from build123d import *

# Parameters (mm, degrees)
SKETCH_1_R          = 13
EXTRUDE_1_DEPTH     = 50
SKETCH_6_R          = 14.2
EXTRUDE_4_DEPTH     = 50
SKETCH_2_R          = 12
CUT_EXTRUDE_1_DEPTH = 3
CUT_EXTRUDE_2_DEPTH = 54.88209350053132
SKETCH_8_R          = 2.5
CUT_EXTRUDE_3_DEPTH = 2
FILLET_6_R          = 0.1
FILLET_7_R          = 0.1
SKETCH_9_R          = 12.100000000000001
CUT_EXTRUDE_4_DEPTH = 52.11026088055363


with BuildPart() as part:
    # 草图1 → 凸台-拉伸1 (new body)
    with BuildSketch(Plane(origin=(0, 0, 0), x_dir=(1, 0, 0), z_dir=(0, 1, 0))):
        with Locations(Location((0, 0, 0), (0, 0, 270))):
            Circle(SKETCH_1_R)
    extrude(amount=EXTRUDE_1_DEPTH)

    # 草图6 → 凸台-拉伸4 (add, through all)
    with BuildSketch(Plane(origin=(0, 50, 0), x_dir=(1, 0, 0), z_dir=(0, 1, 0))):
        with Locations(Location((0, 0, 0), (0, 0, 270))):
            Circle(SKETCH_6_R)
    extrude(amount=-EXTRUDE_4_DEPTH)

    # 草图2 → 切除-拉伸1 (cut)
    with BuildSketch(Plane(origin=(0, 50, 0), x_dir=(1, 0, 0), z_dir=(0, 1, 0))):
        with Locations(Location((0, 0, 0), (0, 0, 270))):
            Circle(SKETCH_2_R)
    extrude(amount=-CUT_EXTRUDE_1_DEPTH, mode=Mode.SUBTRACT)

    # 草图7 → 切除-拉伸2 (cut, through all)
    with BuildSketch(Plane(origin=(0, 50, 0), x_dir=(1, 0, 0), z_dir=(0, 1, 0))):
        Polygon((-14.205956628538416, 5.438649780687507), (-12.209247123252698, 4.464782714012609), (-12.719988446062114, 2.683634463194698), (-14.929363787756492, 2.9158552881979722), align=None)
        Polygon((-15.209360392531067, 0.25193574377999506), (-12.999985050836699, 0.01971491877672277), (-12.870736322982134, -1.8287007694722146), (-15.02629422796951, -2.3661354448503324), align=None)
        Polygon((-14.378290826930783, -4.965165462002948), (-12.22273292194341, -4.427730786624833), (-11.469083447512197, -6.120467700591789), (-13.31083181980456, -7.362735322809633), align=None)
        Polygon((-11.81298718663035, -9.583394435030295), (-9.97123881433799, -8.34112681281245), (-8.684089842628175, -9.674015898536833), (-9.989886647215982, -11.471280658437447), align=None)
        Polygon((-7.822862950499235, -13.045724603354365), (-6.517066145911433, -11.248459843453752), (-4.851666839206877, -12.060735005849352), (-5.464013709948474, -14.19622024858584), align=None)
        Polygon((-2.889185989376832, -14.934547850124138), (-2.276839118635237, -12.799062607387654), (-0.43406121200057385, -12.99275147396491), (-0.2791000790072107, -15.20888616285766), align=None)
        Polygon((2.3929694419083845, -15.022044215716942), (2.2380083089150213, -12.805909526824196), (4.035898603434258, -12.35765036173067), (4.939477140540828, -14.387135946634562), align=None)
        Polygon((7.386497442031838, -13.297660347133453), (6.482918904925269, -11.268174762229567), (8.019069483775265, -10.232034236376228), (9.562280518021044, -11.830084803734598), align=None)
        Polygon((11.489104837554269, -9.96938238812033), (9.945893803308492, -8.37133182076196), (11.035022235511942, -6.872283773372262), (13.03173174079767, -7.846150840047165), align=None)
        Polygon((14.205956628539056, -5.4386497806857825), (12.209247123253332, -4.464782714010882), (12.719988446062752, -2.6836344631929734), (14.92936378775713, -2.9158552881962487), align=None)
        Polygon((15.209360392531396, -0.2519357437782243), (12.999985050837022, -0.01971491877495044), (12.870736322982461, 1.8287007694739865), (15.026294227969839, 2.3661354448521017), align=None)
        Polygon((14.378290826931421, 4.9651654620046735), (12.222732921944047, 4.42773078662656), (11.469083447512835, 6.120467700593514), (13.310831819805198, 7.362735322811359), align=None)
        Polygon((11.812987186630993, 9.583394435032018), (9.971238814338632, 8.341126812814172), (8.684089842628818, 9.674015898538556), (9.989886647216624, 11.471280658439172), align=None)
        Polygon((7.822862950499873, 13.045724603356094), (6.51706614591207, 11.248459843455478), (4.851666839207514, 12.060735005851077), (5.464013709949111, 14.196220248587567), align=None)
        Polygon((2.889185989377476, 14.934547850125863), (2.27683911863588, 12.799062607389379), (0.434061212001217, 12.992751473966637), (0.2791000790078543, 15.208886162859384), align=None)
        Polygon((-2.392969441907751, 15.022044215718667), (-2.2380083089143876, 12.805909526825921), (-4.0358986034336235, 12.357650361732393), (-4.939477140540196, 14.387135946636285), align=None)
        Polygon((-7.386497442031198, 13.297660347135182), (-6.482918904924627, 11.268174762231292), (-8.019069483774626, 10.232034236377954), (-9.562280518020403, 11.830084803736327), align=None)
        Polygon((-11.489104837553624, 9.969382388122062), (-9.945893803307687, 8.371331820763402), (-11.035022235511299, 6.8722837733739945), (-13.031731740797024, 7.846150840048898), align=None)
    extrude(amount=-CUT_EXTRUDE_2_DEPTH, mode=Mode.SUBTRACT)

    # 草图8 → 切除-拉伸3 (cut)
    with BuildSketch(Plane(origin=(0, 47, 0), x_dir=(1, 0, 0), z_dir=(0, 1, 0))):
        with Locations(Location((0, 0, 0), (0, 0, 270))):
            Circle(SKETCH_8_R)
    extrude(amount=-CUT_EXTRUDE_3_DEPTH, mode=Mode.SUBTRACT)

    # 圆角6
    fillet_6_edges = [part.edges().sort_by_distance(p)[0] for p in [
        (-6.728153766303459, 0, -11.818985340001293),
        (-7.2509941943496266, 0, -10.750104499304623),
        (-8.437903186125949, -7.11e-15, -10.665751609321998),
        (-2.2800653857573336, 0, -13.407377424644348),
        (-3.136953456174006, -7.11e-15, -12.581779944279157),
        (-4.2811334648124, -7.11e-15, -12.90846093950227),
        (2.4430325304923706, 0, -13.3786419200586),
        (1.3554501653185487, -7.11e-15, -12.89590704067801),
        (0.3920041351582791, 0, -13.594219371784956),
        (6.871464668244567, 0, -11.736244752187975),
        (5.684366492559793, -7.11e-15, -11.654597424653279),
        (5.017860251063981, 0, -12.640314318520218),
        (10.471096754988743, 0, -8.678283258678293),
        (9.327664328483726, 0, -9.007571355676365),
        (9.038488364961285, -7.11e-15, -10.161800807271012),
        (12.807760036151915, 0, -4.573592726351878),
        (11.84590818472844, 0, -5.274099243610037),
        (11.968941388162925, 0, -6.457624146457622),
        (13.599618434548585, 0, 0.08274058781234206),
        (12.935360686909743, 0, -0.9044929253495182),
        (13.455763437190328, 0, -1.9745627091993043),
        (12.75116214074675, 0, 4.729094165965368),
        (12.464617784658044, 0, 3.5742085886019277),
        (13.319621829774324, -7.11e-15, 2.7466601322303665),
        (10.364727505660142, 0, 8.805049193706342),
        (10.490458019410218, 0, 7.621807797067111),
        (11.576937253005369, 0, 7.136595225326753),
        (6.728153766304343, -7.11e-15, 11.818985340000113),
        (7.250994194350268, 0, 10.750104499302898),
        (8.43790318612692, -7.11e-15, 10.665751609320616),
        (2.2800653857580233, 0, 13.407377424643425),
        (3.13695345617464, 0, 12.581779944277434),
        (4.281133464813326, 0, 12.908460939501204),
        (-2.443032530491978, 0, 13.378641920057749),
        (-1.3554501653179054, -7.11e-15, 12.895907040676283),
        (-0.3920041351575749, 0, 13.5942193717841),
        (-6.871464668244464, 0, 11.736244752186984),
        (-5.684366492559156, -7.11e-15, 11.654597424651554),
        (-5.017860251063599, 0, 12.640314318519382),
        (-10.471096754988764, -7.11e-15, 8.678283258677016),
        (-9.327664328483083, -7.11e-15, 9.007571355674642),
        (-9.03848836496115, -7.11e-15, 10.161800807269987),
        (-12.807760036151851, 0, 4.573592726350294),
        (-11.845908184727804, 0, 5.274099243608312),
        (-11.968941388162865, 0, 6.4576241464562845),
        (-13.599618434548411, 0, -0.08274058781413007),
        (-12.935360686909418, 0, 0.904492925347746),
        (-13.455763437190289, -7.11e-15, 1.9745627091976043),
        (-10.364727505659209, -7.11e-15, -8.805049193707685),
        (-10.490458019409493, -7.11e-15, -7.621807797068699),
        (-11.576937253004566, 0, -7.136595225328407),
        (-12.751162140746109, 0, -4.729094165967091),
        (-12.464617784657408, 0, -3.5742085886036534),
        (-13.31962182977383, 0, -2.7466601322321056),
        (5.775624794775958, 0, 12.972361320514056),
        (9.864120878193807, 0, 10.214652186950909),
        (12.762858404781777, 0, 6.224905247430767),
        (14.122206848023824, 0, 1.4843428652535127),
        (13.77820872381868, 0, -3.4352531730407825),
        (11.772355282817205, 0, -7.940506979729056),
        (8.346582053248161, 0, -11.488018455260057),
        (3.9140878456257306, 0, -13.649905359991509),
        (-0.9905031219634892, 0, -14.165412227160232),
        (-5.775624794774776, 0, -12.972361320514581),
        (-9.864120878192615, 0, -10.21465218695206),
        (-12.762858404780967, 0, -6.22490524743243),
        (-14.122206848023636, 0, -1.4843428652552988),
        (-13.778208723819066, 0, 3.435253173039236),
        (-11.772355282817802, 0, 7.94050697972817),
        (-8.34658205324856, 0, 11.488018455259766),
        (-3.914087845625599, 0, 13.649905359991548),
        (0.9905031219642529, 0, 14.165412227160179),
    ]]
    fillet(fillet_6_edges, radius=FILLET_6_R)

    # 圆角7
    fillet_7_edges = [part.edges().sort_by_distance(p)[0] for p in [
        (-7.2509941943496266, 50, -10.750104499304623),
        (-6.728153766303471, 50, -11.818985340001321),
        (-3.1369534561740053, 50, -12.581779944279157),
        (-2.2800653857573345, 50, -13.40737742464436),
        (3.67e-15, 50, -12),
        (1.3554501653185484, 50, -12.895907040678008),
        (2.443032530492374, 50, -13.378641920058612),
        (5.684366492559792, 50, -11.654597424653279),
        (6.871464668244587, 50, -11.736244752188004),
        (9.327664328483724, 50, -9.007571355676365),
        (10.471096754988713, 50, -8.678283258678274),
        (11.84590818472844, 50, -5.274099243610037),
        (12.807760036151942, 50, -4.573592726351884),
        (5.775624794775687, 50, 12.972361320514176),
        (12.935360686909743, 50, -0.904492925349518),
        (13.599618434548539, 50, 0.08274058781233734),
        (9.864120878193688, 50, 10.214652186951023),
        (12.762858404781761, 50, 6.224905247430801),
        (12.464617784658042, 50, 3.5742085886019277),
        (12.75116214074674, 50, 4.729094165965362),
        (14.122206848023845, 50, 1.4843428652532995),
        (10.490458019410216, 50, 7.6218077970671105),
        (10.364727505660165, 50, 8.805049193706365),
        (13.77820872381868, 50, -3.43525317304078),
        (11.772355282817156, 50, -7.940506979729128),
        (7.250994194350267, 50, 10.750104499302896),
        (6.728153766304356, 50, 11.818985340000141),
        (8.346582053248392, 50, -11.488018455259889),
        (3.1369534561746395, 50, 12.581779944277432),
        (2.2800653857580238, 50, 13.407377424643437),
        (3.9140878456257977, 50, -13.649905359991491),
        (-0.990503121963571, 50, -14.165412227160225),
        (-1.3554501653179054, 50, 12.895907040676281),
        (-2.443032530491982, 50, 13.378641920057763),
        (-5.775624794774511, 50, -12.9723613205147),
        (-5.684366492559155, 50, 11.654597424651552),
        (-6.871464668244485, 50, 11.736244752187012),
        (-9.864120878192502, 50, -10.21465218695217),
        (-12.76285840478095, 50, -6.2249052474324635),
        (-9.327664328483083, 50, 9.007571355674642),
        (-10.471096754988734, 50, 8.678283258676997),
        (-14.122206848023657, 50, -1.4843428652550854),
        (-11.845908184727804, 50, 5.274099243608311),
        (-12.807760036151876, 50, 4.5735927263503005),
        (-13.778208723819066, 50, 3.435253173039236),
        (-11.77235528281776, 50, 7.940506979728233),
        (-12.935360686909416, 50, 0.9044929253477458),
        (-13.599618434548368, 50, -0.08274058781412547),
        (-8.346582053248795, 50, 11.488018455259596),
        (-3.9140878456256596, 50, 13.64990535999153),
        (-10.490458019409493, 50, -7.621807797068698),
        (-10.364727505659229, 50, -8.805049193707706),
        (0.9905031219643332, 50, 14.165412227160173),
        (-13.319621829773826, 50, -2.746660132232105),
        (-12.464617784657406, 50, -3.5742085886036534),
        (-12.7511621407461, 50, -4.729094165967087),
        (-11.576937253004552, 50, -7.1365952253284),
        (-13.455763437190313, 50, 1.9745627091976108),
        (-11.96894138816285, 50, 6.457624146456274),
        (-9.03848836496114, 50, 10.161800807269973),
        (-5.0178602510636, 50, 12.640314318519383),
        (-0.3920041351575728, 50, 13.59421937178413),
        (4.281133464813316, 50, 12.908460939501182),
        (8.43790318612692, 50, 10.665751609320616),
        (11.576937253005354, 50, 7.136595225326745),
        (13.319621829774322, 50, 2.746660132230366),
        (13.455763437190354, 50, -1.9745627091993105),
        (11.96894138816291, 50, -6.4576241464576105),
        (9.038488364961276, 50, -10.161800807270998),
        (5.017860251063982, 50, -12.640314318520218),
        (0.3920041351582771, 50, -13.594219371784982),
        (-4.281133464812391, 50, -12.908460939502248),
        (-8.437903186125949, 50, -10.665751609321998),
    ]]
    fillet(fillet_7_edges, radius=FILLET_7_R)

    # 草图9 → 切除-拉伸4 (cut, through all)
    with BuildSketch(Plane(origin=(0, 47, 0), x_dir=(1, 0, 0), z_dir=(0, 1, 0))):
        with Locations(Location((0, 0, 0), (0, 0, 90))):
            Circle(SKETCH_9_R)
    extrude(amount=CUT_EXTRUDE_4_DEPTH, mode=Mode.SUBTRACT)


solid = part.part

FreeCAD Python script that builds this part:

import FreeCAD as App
import Part
import Sketcher
from FreeCAD import Vector


def edges_at(feature, points):
    """Names of the edges that pass closest to the given points."""
    edges = feature.Shape.Edges
    near = lambda p: min(range(len(edges)), key=lambda i: edges[i].distToShape(Part.Vertex(*p))[0])
    return sorted({f"Edge{near(p) + 1}" for p in points})


def add_polygon(sketch, points):
    """Adds a closed chain of lines whose ends are joined by coincident constraints."""
    first, n = sketch.GeometryCount, len(points)
    for a, b in zip(points, points[1:] + points[:1]):
        sketch.addGeometry(Part.LineSegment(App.Vector(*a, 0), App.Vector(*b, 0)), False)
    for i in range(n):
        sketch.addConstraint(Sketcher.Constraint("Coincident", first + i, 2, first + (i + 1) % n, 1))

doc = App.newDocument("Part")
body = doc.addObject("PartDesign::Body", "Body")

# Sketch on XZ plane
sketch1 = body.newObject("Sketcher::SketchObject", "Sketch")
sketch1.AttachmentSupport = (doc.getObject("XZ_Plane"), [""])
sketch1.MapMode = "FlatFace"
sketch1.addGeometry(Part.Circle(Vector(0, 0, 0), Vector(0, 0, 1), 13), False)
sketch1.addConstraint([
    Sketcher.Constraint("Coincident", 0, 3, -1, 1),
    Sketcher.Constraint("Diameter", 0, 26.0),
])
pad1 = body.newObject("PartDesign::Pad", "Pad")
pad1.Profile = sketch1
pad1.Length = 50
pad1.Reversed = True

# Sketch on XZ plane
sketch2 = body.newObject("Sketcher::SketchObject", "Sketch001")
sketch2.AttachmentSupport = (doc.getObject("XZ_Plane"), [""])
sketch2.MapMode = "FlatFace"
sketch2.AttachmentOffset = App.Placement(Vector(0, 0, -50), App.Rotation())
sketch2.addGeometry(Part.Circle(Vector(0, 0, 0), Vector(0, 0, 1), 14.2), False)
sketch2.addConstraint([
    Sketcher.Constraint("Coincident", 0, 3, -1, 1),
    Sketcher.Constraint("Diameter", 0, 28.4),
])
pad2 = body.newObject("PartDesign::Pad", "Pad001")
pad2.Profile = sketch2
pad2.Type = "UpToLast"

# Sketch on XZ plane
sketch3 = body.newObject("Sketcher::SketchObject", "Sketch002")
sketch3.AttachmentSupport = (doc.getObject("XZ_Plane"), [""])
sketch3.MapMode = "FlatFace"
sketch3.AttachmentOffset = App.Placement(Vector(0, 0, -50), App.Rotation())
sketch3.addGeometry(Part.Circle(Vector(0, 0, 0), Vector(0, 0, 1), 12), False)
sketch3.addConstraint([
    Sketcher.Constraint("Coincident", 0, 3, -1, 1),
    Sketcher.Constraint("Diameter", 0, 24.0),
])
pocket1 = body.newObject("PartDesign::Pocket", "Pocket")
pocket1.Profile = sketch3
pocket1.Length = 3
pocket1.Reversed = True

# Sketch on XZ plane
sketch4 = body.newObject("Sketcher::SketchObject", "Sketch003")
sketch4.AttachmentSupport = (doc.getObject("XZ_Plane"), [""])
sketch4.MapMode = "FlatFace"
sketch4.AttachmentOffset = App.Placement(Vector(0, 0, -50), App.Rotation())
add_polygon(sketch4, [(-12.209247, -4.464783), (-14.205957, -5.43865), (-14.929364, -2.915855), (-12.719988, -2.683634)])  # lines 0-3
add_polygon(sketch4, [(-12.999985, -0.019715), (-15.20936, -0.251936), (-15.026294, 2.366135), (-12.870736, 1.828701)])  # lines 4-7
add_polygon(sketch4, [(-12.222733, 4.427731), (-14.378291, 4.965165), (-13.310832, 7.362735), (-11.469083, 6.120468)])  # lines 8-11
add_polygon(sketch4, [(-9.971239, 8.341127), (-11.812987, 9.583394), (-9.989887, 11.471281), (-8.68409, 9.674016)])  # lines 12-15
add_polygon(sketch4, [(-6.517066, 11.24846), (-7.822863, 13.045725), (-5.464014, 14.19622), (-4.851667, 12.060735)])  # lines 16-19
add_polygon(sketch4, [(-2.276839, 12.799063), (-2.889186, 14.934548), (-0.2791, 15.208886), (-0.434061, 12.992751)])  # lines 20-23
add_polygon(sketch4, [(2.238008, 12.80591), (2.392969, 15.022044), (4.939477, 14.387136), (4.035899, 12.35765)])  # lines 24-27
add_polygon(sketch4, [(6.482919, 11.268175), (7.386497, 13.29766), (9.562281, 11.830085), (8.019069, 10.232034)])  # lines 28-31
add_polygon(sketch4, [(9.945894, 8.371332), (11.489105, 9.969382), (13.031732, 7.846151), (11.035022, 6.872284)])  # lines 32-35
add_polygon(sketch4, [(12.209247, 4.464783), (14.205957, 5.43865), (14.929364, 2.915855), (12.719988, 2.683634)])  # lines 36-39
add_polygon(sketch4, [(12.999985, 0.019715), (15.20936, 0.251936), (15.026294, -2.366135), (12.870736, -1.828701)])  # lines 40-43
add_polygon(sketch4, [(12.222733, -4.427731), (14.378291, -4.965165), (13.310832, -7.362735), (11.469083, -6.120468)])  # lines 44-47
add_polygon(sketch4, [(9.971239, -8.341127), (11.812987, -9.583394), (9.989887, -11.471281), (8.68409, -9.674016)])  # lines 48-51
add_polygon(sketch4, [(6.517066, -11.24846), (7.822863, -13.045725), (5.464014, -14.19622), (4.851667, -12.060735)])  # lines 52-55
add_polygon(sketch4, [(2.276839, -12.799063), (2.889186, -14.934548), (0.2791, -15.208886), (0.434061, -12.992751)])  # lines 56-59
add_polygon(sketch4, [(-2.238008, -12.80591), (-2.392969, -15.022044), (-4.939477, -14.387136), (-4.035899, -12.35765)])  # lines 60-63
add_polygon(sketch4, [(-6.482919, -11.268175), (-7.386497, -13.29766), (-9.562281, -11.830085), (-8.019069, -10.232034)])  # lines 64-67
add_polygon(sketch4, [(-9.945894, -8.371332), (-11.489105, -9.969382), (-13.031732, -7.846151), (-11.035022, -6.872284)])  # lines 68-71
sketch4.addConstraint([
    Sketcher.Constraint("Symmetric", 0, 2, 36, 2, -1, 1),
    Sketcher.Constraint("Symmetric", 1, 2, 37, 2, -1, 1),
    Sketcher.Constraint("Symmetric", 2, 2, 38, 2, -1, 1),
    Sketcher.Constraint("Symmetric", 3, 2, 39, 2, -1, 1),
    Sketcher.Constraint("Symmetric", 4, 2, 40, 2, -1, 1),
    Sketcher.Constraint("Symmetric", 5, 2, 41, 2, -1, 1),
    Sketcher.Constraint("Symmetric", 6, 2, 42, 2, -1, 1),
    Sketcher.Constraint("Symmetric", 7, 2, 43, 2, -1, 1),
    Sketcher.Constraint("Symmetric", 8, 2, 44, 2, -1, 1),
    Sketcher.Constraint("Symmetric", 9, 2, 45, 2, -1, 1),
    Sketcher.Constraint("Symmetric", 10, 2, 46, 2, -1, 1),
    Sketcher.Constraint("Symmetric", 11, 2, 47, 2, -1, 1),
    Sketcher.Constraint("Symmetric", 12, 2, 48, 2, -1, 1),
    Sketcher.Constraint("Symmetric", 13, 2, 49, 2, -1, 1),
    Sketcher.Constraint("Symmetric", 14, 2, 50, 2, -1, 1),
    Sketcher.Constraint("Symmetric", 15, 2, 51, 2, -1, 1),
    Sketcher.Constraint("Symmetric", 16, 2, 52, 2, -1, 1),
    Sketcher.Constraint("Symmetric", 17, 2, 53, 2, -1, 1),
    Sketcher.Constraint("Symmetric", 18, 2, 54, 2, -1, 1),
    Sketcher.Constraint("Symmetric", 19, 2, 55, 2, -1, 1),
    Sketcher.Constraint("Symmetric", 20, 2, 56, 2, -1, 1),
    Sketcher.Constraint("Symmetric", 21, 2, 57, 2, -1, 1),
    Sketcher.Constraint("Symmetric", 22, 2, 58, 2, -1, 1),
    Sketcher.Constraint("Symmetric", 23, 2, 59, 2, -1, 1),
    Sketcher.Constraint("Symmetric", 24, 2, 60, 2, -1, 1),
    Sketcher.Constraint("Symmetric", 25, 2, 61, 2, -1, 1),
    Sketcher.Constraint("Symmetric", 26, 2, 62, 2, -1, 1),
    Sketcher.Constraint("Symmetric", 27, 2, 63, 2, -1, 1),
    Sketcher.Constraint("Symmetric", 28, 2, 64, 2, -1, 1),
    Sketcher.Constraint("Symmetric", 29, 2, 65, 2, -1, 1),
    Sketcher.Constraint("Symmetric", 30, 2, 66, 2, -1, 1),
    Sketcher.Constraint("Symmetric", 31, 2, 67, 2, -1, 1),
    Sketcher.Constraint("Symmetric", 32, 2, 68, 2, -1, 1),
    Sketcher.Constraint("Symmetric", 33, 2, 69, 2, -1, 1),
    Sketcher.Constraint("Symmetric", 34, 2, 70, 2, -1, 1),
    Sketcher.Constraint("Symmetric", 35, 2, 71, 2, -1, 1),
    Sketcher.Constraint("Parallel", 1, 3),
    Sketcher.Constraint("Parallel", 2, 4),
    Sketcher.Constraint("Parallel", 5, 7),
    Sketcher.Constraint("Parallel", 6, 8),
    Sketcher.Constraint("Parallel", 9, 11),
    Sketcher.Constraint("Parallel", 10, 12),
    Sketcher.Constraint("Parallel", 13, 15),
    Sketcher.Constraint("Parallel", 14, 16),
    Sketcher.Constraint("Parallel", 0, 17),
    Sketcher.Constraint("Parallel", 3, 18),
    Sketcher.Constraint("Parallel", 17, 19),
    Sketcher.Constraint("Parallel", 18, 20),
    Sketcher.Constraint("Parallel", 4, 21),
    Sketcher.Constraint("Parallel", 7, 22),
    Sketcher.Constraint("Parallel", 21, 23),
    Sketcher.Constraint("Parallel", 22, 24),
    Sketcher.Constraint("Parallel", 8, 25),
    Sketcher.Constraint("Parallel", 11, 26),
    Sketcher.Constraint("Parallel", 25, 27),
    Sketcher.Constraint("Parallel", 26, 28),
    Sketcher.Constraint("Parallel", 12, 29),
    Sketcher.Constraint("Parallel", 15, 30),
    Sketcher.Constraint("Parallel", 29, 31),
    Sketcher.Constraint("Parallel", 30, 32),
    Sketcher.Constraint("Parallel", 16, 33),
    Sketcher.Constraint("Parallel", 19, 34),
    Sketcher.Constraint("Parallel", 33, 35),
    Sketcher.Constraint("Equal", 0, 2),
    Sketcher.Constraint("Equal", 2, 4),
    Sketcher.Constraint("Equal", 1, 5),
    Sketcher.Constraint("Equal", 4, 6),
    Sketcher.Constraint("Equal", 3, 7),
    Sketcher.Constraint("Equal", 6, 8),
    Sketcher.Constraint("Equal", 5, 9),
    Sketcher.Constraint("Equal", 8, 10),
    Sketcher.Constraint("Equal", 7, 11),
    Sketcher.Constraint("Equal", 10, 12),
    Sketcher.Constraint("Equal", 9, 13),
    Sketcher.Constraint("Equal", 12, 14),
    Sketcher.Constraint("Equal", 11, 15),
    Sketcher.Constraint("Equal", 14, 16),
    Sketcher.Constraint("Equal", 13, 17),
    Sketcher.Constraint("Equal", 16, 18),
    Sketcher.Constraint("Equal", 18, 20),
    Sketcher.Constraint("Equal", 17, 21),
    Sketcher.Constraint("Equal", 22, 24),
    Sketcher.Constraint("Equal", 21, 25),
    Sketcher.Constraint("Equal", 26, 28),
    Sketcher.Constraint("Equal", 25, 29),
    Sketcher.Constraint("Equal", 30, 32),
    Sketcher.Constraint("Equal", 29, 33),
    Sketcher.Constraint("DistanceY", -1, 1, 6, 2, 1.828701),
    Sketcher.Constraint("DistanceX", 21, 2, -1, 1, 0.2791),
    Sketcher.Constraint("DistanceX", -1, 1, 26, 2, 4.035899),
    Sketcher.Constraint("Distance", 3, 1.852929),
    Sketcher.Constraint("DistanceY", 0, 2, -1, 1, 5.43865),
    Sketcher.Constraint("DistanceX", 2, 2, -1, 1, 12.719988),
    Sketcher.Constraint("DistanceX", 4, 2, -1, 1, 15.20936),
    Sketcher.Constraint("DistanceX", 8, 2, -1, 1, 14.378291),
    Sketcher.Constraint("DistanceX", 9, 2, -1, 1, 13.310832),
    Sketcher.Constraint("DistanceY", -1, 1, 11, 2, 4.427731),
    Sketcher.Constraint("DistanceY", -1, 1, 13, 2, 11.471281),
    Sketcher.Constraint("DistanceX", 14, 2, -1, 1, 8.68409),
    Sketcher.Constraint("DistanceX", 15, 2, -1, 1, 9.971239),
    Sketcher.Constraint("DistanceY", -1, 1, 17, 2, 14.19622),
    Sketcher.Constraint("DistanceY", -1, 1, 22, 2, 12.992751),
    Sketcher.Constraint("DistanceY", -1, 1, 26, 2, 12.35765),
    Sketcher.Constraint("DistanceY", -1, 1, 28, 2, 13.29766),
    Sketcher.Constraint("DistanceX", -1, 1, 29, 2, 9.562281),
    Sketcher.Constraint("DistanceX", -1, 1, 33, 2, 13.031732),
    Sketcher.Constraint("DistanceY", -1, 1, 33, 2, 7.846151),
    Sketcher.Constraint("DistanceX", 16, 2, -1, 1, 7.822863),
])
pocket2 = body.newObject("PartDesign::Pocket", "Pocket001")
pocket2.Profile = sketch4
pocket2.Type = "ThroughAll"
pocket2.Reversed = True

# Sketch on XZ plane
sketch5 = body.newObject("Sketcher::SketchObject", "Sketch004")
sketch5.AttachmentSupport = (doc.getObject("XZ_Plane"), [""])
sketch5.MapMode = "FlatFace"
sketch5.AttachmentOffset = App.Placement(Vector(0, 0, -47), App.Rotation())
sketch5.addGeometry(Part.Circle(Vector(0, 0, 0), Vector(0, 0, 1), 2.5), False)
sketch5.addConstraint([
    Sketcher.Constraint("Coincident", 0, 3, -1, 1),
    Sketcher.Constraint("Diameter", 0, 5.0),
])
pocket3 = body.newObject("PartDesign::Pocket", "Pocket002")
pocket3.Profile = sketch5
pocket3.Length = 2
pocket3.Reversed = True
doc.recompute()

fillet = body.newObject("PartDesign::Fillet", "Fillet")
fillet.Base = (pocket3, edges_at(pocket3, [
    (-6.728, 0, -11.819),
    (-7.251, 0, -10.75),
    (-8.438, 0, -10.666),
    (-2.28, 0, -13.407),
    (-3.137, 0, -12.582),
    (-4.281, 0, -12.908),
    (2.443, 0, -13.379),
    (1.355, 0, -12.896),
    (0.392, 0, -13.594),
    (6.871, 0, -11.736),
    (5.684, 0, -11.655),
    (5.018, 0, -12.64),
    (10.471, 0, -8.678),
    (9.328, 0, -9.008),
    (9.038, 0, -10.162),
    (12.808, 0, -4.574),
    (11.846, 0, -5.274),
    (11.969, 0, -6.458),
    (13.6, 0, 0.083),
    (12.935, 0, -0.904),
    (13.456, 0, -1.975),
    (12.751, 0, 4.729),
    (12.465, 0, 3.574),
    (13.32, 0, 2.747),
    (10.365, 0, 8.805),
    (10.49, 0, 7.622),
    (11.577, 0, 7.137),
    (6.728, 0, 11.819),
    (7.251, 0, 10.75),
    (8.438, 0, 10.666),
    (2.28, 0, 13.407),
    (3.137, 0, 12.582),
    (4.281, 0, 12.908),
    (-2.443, 0, 13.379),
    (-1.355, 0, 12.896),
    (-0.392, 0, 13.594),
    (-6.871, 0, 11.736),
    (-5.684, 0, 11.655),
    (-5.018, 0, 12.64),
    (-10.471, 0, 8.678),
    (-9.328, 0, 9.008),
    (-9.038, 0, 10.162),
    (-12.808, 0, 4.574),
    (-11.846, 0, 5.274),
    (-11.969, 0, 6.458),
    (-13.6, 0, -0.083),
    (-12.935, 0, 0.904),
    (-13.456, 0, 1.975),
    (-10.365, 0, -8.805),
    (-10.49, 0, -7.622),
    (-11.577, 0, -7.137),
    (-12.751, 0, -4.729),
    (-12.465, 0, -3.574),
    (-13.32, 0, -2.747),
    (5.776, 0, 12.972),
    (9.864, 0, 10.215),
    (12.763, 0, 6.225),
    (14.122, 0, 1.484),
    (13.778, 0, -3.435),
    (11.772, 0, -7.941),
    (8.347, 0, -11.488),
    (3.914, 0, -13.65),
    (-0.991, 0, -14.165),
    (-5.776, 0, -12.972),
    (-9.864, 0, -10.215),
    (-12.763, 0, -6.225),
    (-14.122, 0, -1.484),
    (-13.778, 0, 3.435),
    (-11.772, 0, 7.941),
    (-8.347, 0, 11.488),
    (-3.914, 0, 13.65),
    (0.991, 0, 14.165),
]))
fillet.Radius = 0.1
doc.recompute()

fillet2 = body.newObject("PartDesign::Fillet", "Fillet001")
fillet2.Base = (fillet, edges_at(fillet, [
    (-7.251, 50, -10.75),
    (-6.728, 50, -11.819),
    (-3.137, 50, -12.582),
    (-2.28, 50, -13.407),
    (0, 50, -12),
    (1.355, 50, -12.896),
    (2.443, 50, -13.379),
    (5.684, 50, -11.655),
    (6.871, 50, -11.736),
    (9.328, 50, -9.008),
    (10.471, 50, -8.678),
    (11.846, 50, -5.274),
    (12.808, 50, -4.574),
    (5.776, 50, 12.972),
    (12.935, 50, -0.904),
    (13.6, 50, 0.083),
    (9.864, 50, 10.215),
    (12.763, 50, 6.225),
    (12.465, 50, 3.574),
    (12.751, 50, 4.729),
    (14.122, 50, 1.484),
    (10.49, 50, 7.622),
    (10.365, 50, 8.805),
    (13.778, 50, -3.435),
    (11.772, 50, -7.941),
    (7.251, 50, 10.75),
    (6.728, 50, 11.819),
    (8.347, 50, -11.488),
    (3.137, 50, 12.582),
    (2.28, 50, 13.407),
    (3.914, 50, -13.65),
    (-0.991, 50, -14.165),
    (-1.355, 50, 12.896),
    (-2.443, 50, 13.379),
    (-5.776, 50, -12.972),
    (-5.684, 50, 11.655),
    (-6.871, 50, 11.736),
    (-9.864, 50, -10.215),
    (-12.763, 50, -6.225),
    (-9.328, 50, 9.008),
    (-10.471, 50, 8.678),
    (-14.122, 50, -1.484),
    (-11.846, 50, 5.274),
    (-12.808, 50, 4.574),
    (-13.778, 50, 3.435),
    (-11.772, 50, 7.941),
    (-12.935, 50, 0.904),
    (-13.6, 50, -0.083),
    (-8.347, 50, 11.488),
    (-3.914, 50, 13.65),
    (-10.49, 50, -7.622),
    (-10.365, 50, -8.805),
    (0.991, 50, 14.165),
    (-13.32, 50, -2.747),
    (-12.465, 50, -3.574),
    (-12.751, 50, -4.729),
    (-11.577, 50, -7.137),
    (-13.456, 50, 1.975),
    (-11.969, 50, 6.458),
    (-9.038, 50, 10.162),
    (-5.018, 50, 12.64),
    (-0.392, 50, 13.594),
    (4.281, 50, 12.908),
    (8.438, 50, 10.666),
    (11.577, 50, 7.137),
    (13.32, 50, 2.747),
    (13.456, 50, -1.975),
    (11.969, 50, -6.458),
    (9.038, 50, -10.162),
    (5.018, 50, -12.64),
    (0.392, 50, -13.594),
    (-4.281, 50, -12.908),
    (-8.438, 50, -10.666),
]))
fillet2.Radius = 0.1

# Sketch on XZ plane
sketch6 = body.newObject("Sketcher::SketchObject", "Sketch005")
sketch6.AttachmentSupport = (doc.getObject("XZ_Plane"), [""])
sketch6.MapMode = "FlatFace"
sketch6.AttachmentOffset = App.Placement(Vector(0, 0, -47), App.Rotation())
sketch6.addGeometry(Part.Circle(Vector(0, 0, 0), Vector(0, 0, 1), 12.1), False)
sketch6.addConstraint([
    Sketcher.Constraint("Coincident", 0, 3, -1, 1),
    Sketcher.Constraint("Diameter", 0, 24.2),
])
pocket4 = body.newObject("PartDesign::Pocket", "Pocket003")
pocket4.Profile = sketch6
pocket4.Type = "ThroughAll"

doc.recompute()
